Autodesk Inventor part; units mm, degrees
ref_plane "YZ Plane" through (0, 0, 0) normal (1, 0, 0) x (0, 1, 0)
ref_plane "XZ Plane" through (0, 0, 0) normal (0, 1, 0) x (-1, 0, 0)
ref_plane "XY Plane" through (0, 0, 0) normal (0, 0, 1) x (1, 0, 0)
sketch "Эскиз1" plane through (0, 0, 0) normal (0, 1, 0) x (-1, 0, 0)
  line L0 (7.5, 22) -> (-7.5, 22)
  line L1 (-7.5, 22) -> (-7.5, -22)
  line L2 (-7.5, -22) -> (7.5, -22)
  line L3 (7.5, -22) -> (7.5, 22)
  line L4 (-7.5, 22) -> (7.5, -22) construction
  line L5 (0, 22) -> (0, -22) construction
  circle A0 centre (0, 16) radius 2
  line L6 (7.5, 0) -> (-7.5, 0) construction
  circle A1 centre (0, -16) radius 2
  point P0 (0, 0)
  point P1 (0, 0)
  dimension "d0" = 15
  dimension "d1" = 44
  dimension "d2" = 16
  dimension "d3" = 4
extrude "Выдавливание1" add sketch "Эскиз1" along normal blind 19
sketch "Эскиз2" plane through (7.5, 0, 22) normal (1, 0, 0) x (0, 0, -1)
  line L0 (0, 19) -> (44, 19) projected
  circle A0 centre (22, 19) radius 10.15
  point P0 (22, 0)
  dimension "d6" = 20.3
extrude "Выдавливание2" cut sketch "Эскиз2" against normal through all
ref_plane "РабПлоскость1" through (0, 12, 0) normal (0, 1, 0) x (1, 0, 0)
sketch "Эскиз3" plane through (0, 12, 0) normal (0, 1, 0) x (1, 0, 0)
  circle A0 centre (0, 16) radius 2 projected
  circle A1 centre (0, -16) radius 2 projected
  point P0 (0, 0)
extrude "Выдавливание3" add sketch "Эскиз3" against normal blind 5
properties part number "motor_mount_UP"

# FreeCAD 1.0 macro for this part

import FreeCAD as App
import Part
import Sketcher

V = App.Vector
Q = App.Units.Quantity

doc = App.newDocument("Part")
body = doc.addObject("PartDesign::Body", "Body")

# Sketch on XZ plane
sketch1 = body.newObject("Sketcher::SketchObject", "Sketch")
sketch1.AttachmentSupport = (doc.getObject("XZ_Plane"), [""])
sketch1.MapMode = "FlatFace"
sketch1.addGeometry(Part.LineSegment(V(-7.5, -22, 0), V(-7.5, 22, 0)), False)
sketch1.addGeometry(Part.LineSegment(V(-7.5, 22, 0), V(7.5, 22, 0)), False)
sketch1.addGeometry(Part.LineSegment(V(7.5, 22, 0), V(7.5, -22, 0)), False)
sketch1.addGeometry(Part.LineSegment(V(7.5, -22, 0), V(-7.5, -22, 0)), False)
sketch1.addGeometry(Part.Circle(V(0, -16, 0), V(0, 0, 1), 2), False)
sketch1.addGeometry(Part.Circle(V(0, 16, 0), V(0, 0, 1), 2), False)
sketch1.addConstraint(Sketcher.Constraint("Coincident", 0, 2, 1, 1))
sketch1.addConstraint(Sketcher.Constraint("Coincident", 1, 2, 2, 1))
sketch1.addConstraint(Sketcher.Constraint("Coincident", 2, 2, 3, 1))
sketch1.addConstraint(Sketcher.Constraint("Coincident", 3, 2, 0, 1))
sketch1.addConstraint(Sketcher.Constraint("Vertical", 0))
sketch1.addConstraint(Sketcher.Constraint("Horizontal", 1))
sketch1.addConstraint(Sketcher.Constraint("Vertical", 2))
sketch1.addConstraint(Sketcher.Constraint("Horizontal", 3))
sketch1.addConstraint(Sketcher.Constraint("Equal", 4, 5))
sketch1.addConstraint(Sketcher.Constraint("Symmetric", 4, 3, 5, 3, -1, 1))
sketch1.addConstraint(Sketcher.Constraint("Symmetric", 0, 2, 2, 2, -1, 1))
sketch1.addConstraint(Sketcher.Constraint("PointOnObject", 4, 3, -2))
sketch1.addConstraint(Sketcher.Constraint("Diameter", 4, Q("4 mm")))
sketch1.addConstraint(Sketcher.Constraint("DistanceX", 1, 1, 1, 2, Q("15 mm")))
sketch1.addConstraint(Sketcher.Constraint("DistanceY", 0, 1, 0, 2, Q("44 mm")))
sketch1.addConstraint(Sketcher.Constraint("DistanceY", 4, 3, -1, 1, Q("16 mm")))
pad1 = body.newObject("PartDesign::Pad", "Pad")
pad1.Profile = sketch1
pad1.Length = 19
pad1.Reversed = True

# Sketch on YZ plane
sketch2 = body.newObject("Sketcher::SketchObject", "Sketch001")
sketch2.AttachmentSupport = (doc.getObject("YZ_Plane"), [""])
sketch2.MapMode = "FlatFace"
sketch2.AttachmentOffset = App.Placement(V(0, 0, 7.5), App.Rotation())
sketch2.addGeometry(Part.Circle(V(19, 0, 0), V(0, 0, 1), 10.15), False)
sketch2.addConstraint(Sketcher.Constraint("PointOnObject", 0, 3, -1))
sketch2.addConstraint(Sketcher.Constraint("Diameter", 0, Q("20.3 mm")))
sketch2.addConstraint(Sketcher.Constraint("DistanceX", -1, 1, 0, 3, Q("19 mm")))
pocket1 = body.newObject("PartDesign::Pocket", "Pocket")
pocket1.Profile = sketch2
pocket1.Type = "ThroughAll"

# Sketch on XZ plane
sketch3 = body.newObject("Sketcher::SketchObject", "Sketch002")
sketch3.AttachmentSupport = (doc.getObject("XZ_Plane"), [""])
sketch3.MapMode = "FlatFace"
sketch3.AttachmentOffset = App.Placement(V(0, 0, -12), App.Rotation())
sketch3.addGeometry(Part.Circle(V(0, -16, 0), V(0, 0, 1), 2), False)
sketch3.addGeometry(Part.Circle(V(0, 16, 0), V(0, 0, 1), 2), False)
sketch3.addConstraint(Sketcher.Constraint("Equal", 0, 1))
sketch3.addConstraint(Sketcher.Constraint("Symmetric", 0, 3, 1, 3, -1, 1))
sketch3.addConstraint(Sketcher.Constraint("PointOnObject", 0, 3, -2))
sketch3.addConstraint(Sketcher.Constraint("Diameter", 0, Q("4 mm")))
sketch3.addConstraint(Sketcher.Constraint("DistanceY", 0, 3, -1, 1, Q("16 mm")))
pad2 = body.newObject("PartDesign::Pad", "Pad001")
pad2.Profile = sketch3
pad2.Length = 5

doc.recompute()
